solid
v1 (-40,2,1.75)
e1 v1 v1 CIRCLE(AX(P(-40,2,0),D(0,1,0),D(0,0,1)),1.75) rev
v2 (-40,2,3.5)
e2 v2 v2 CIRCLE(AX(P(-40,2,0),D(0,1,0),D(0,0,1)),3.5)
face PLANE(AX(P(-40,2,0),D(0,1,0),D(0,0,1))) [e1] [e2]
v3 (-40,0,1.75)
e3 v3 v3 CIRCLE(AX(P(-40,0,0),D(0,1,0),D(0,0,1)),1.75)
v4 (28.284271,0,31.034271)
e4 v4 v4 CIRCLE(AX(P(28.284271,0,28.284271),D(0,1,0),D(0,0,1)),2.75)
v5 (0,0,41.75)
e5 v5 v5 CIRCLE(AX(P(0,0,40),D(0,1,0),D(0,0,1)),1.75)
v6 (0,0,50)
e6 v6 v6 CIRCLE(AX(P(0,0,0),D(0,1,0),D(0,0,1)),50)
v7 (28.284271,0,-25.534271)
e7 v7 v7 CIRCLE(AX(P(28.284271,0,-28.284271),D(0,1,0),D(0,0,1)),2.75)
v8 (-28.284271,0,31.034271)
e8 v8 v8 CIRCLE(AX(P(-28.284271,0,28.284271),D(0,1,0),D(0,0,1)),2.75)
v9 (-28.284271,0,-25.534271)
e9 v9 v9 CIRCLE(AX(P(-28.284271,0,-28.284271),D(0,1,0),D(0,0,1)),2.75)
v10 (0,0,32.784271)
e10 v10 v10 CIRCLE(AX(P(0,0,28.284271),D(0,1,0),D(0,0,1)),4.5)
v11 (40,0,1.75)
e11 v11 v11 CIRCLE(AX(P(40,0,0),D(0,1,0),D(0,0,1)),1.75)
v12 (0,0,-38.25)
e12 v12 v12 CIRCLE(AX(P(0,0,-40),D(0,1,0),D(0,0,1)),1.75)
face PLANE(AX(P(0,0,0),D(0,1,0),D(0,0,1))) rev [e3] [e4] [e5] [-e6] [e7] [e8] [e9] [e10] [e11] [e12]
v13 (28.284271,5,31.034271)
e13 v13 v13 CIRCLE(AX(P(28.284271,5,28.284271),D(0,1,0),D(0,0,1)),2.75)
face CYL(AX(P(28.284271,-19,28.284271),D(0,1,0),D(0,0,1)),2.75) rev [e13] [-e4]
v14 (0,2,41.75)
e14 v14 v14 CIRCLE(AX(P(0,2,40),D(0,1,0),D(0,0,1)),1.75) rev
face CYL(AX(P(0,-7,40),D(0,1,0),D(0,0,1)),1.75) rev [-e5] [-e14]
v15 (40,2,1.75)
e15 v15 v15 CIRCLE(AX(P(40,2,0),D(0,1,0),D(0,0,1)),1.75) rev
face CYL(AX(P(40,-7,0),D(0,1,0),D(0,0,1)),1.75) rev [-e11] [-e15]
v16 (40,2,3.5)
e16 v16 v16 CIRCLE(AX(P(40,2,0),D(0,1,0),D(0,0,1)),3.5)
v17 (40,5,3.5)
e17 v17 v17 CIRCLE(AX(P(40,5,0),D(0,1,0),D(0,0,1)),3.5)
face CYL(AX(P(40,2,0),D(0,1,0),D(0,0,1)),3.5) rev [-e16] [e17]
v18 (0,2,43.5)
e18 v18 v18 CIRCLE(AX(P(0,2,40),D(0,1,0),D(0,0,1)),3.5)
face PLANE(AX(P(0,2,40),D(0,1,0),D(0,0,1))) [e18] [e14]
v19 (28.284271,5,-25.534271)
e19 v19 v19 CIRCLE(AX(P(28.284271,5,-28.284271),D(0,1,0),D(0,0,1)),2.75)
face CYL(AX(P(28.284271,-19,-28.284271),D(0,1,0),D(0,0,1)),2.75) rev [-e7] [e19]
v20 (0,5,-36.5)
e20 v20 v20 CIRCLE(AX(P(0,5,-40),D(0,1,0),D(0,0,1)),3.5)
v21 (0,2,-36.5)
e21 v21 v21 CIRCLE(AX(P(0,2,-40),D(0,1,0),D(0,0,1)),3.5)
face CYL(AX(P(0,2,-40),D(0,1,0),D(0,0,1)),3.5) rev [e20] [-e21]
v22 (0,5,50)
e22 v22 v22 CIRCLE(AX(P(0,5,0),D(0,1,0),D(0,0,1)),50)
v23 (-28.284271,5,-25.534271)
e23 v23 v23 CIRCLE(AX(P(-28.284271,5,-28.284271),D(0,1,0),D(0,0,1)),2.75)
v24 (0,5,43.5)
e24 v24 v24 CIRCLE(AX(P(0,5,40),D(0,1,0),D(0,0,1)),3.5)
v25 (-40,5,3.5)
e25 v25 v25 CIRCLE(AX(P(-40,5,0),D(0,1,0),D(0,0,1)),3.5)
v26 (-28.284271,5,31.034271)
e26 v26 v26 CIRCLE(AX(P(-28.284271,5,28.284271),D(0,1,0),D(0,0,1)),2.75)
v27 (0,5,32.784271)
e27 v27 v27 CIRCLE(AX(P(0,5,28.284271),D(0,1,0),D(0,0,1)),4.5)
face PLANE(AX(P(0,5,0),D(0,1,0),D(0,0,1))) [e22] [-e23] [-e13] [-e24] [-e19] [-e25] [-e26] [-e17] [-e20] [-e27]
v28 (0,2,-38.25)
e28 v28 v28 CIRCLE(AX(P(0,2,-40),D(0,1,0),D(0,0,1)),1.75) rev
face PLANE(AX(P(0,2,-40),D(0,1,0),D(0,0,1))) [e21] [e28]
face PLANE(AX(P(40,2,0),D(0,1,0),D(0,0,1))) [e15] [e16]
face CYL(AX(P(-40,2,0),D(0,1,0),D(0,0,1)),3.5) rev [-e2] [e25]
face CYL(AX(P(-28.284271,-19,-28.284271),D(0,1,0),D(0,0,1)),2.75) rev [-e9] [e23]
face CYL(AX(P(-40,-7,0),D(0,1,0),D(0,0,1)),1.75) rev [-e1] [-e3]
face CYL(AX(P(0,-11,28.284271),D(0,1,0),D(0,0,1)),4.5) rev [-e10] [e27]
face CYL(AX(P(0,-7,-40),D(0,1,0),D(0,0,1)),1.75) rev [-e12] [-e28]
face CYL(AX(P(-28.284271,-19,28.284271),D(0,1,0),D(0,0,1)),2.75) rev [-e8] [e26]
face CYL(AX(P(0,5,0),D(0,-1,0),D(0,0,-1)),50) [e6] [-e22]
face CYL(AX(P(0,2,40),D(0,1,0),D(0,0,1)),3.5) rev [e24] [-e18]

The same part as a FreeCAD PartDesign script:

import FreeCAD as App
import Part
import Sketcher
from FreeCAD import Vector

doc = App.newDocument("Part")
body = doc.addObject("PartDesign::Body", "Body")

sketch1 = body.newObject("Sketcher::SketchObject", "Sketch")
sketch1.AttachmentSupport = (doc.getObject("XZ_Plane"), [""])
sketch1.MapMode = "FlatFace"
sketch1.addGeometry(Part.Circle(Vector(0, 0, 0), Vector(0, 0, 1), 50), False)
sketch1.addConstraint([
    Sketcher.Constraint("Coincident", 0, 3, -1, 1),
    Sketcher.Constraint("Diameter", 0, 100.0),
])
pad1 = body.newObject("PartDesign::Pad", "Pad")
pad1.Profile = sketch1
pad1.Length = 5
pad1.Reversed = True

sketch2 = body.newObject("Sketcher::SketchObject", "Sketch001")
sketch2.AttachmentSupport = (doc.getObject("XZ_Plane"), [""])
sketch2.MapMode = "FlatFace"
sketch2.AttachmentOffset = App.Placement(Vector(0, 0, -5), App.Rotation())
sketch2.addGeometry([
    Part.Circle(Vector(0, -40, 0), Vector(0, 0, 1), 1.8),
    Part.Circle(Vector(40, 0, 0), Vector(0, 0, 1), 1.8),
    Part.Circle(Vector(0, 40, 0), Vector(0, 0, 1), 1.8),
    Part.Circle(Vector(-40, 0, 0), Vector(0, 0, 1), 1.8),
], False)
sketch2.addConstraint([
    Sketcher.Constraint("Equal", 0, 1),
    Sketcher.Constraint("Equal", 1, 2),
    Sketcher.Constraint("Equal", 2, 3),
    Sketcher.Constraint("Symmetric", 0, 3, 2, 3, -1, 1),
    Sketcher.Constraint("Symmetric", 1, 3, 3, 3, -1, 1),
    Sketcher.Constraint("PointOnObject", 0, 3, -2),
    Sketcher.Constraint("PointOnObject", 1, 3, -1),
    Sketcher.Constraint("Diameter", 0, 3.5),
    Sketcher.Constraint("DistanceY", 0, 3, -1, 1, 40.0),
    Sketcher.Constraint("DistanceX", -1, 1, 1, 3, 40.0),
])
pocket1 = body.newObject("PartDesign::Pocket", "Pocket")
pocket1.Profile = sketch2
pocket1.Length = 12
pocket1.Reversed = True

sketch3 = body.newObject("Sketcher::SketchObject", "Sketch002")
sketch3.AttachmentSupport = (doc.getObject("XZ_Plane"), [""])
sketch3.MapMode = "FlatFace"
sketch3.AttachmentOffset = App.Placement(Vector(0, 0, -5), App.Rotation())
sketch3.addGeometry([
    Part.Circle(Vector(0, -40, 0), Vector(0, 0, 1), 3.5),
    Part.Circle(Vector(40, 0, 0), Vector(0, 0, 1), 3.5),
    Part.Circle(Vector(0, 40, 0), Vector(0, 0, 1), 3.5),
    Part.Circle(Vector(-40, 0, 0), Vector(0, 0, 1), 3.5),
], False)
sketch3.addConstraint([
    Sketcher.Constraint("Equal", 0, 1),
    Sketcher.Constraint("Equal", 1, 2),
    Sketcher.Constraint("Equal", 2, 3),
    Sketcher.Constraint("Symmetric", 0, 3, 2, 3, -1, 1),
    Sketcher.Constraint("Symmetric", 1, 3, 3, 3, -1, 1),
    Sketcher.Constraint("PointOnObject", 0, 3, -2),
    Sketcher.Constraint("PointOnObject", 1, 3, -1),
    Sketcher.Constraint("Diameter", 0, 7.0),
    Sketcher.Constraint("DistanceY", 0, 3, -1, 1, 40.0),
    Sketcher.Constraint("DistanceX", -1, 1, 1, 3, 40.0),
])
pocket2 = body.newObject("PartDesign::Pocket", "Pocket001")
pocket2.Profile = sketch3
pocket2.Length = 3
pocket2.Reversed = True

sketch4 = body.newObject("Sketcher::SketchObject", "Sketch003")
sketch4.AttachmentSupport = (doc.getObject("XZ_Plane"), [""])
sketch4.MapMode = "FlatFace"
sketch4.AttachmentOffset = App.Placement(Vector(0, 0, -5), App.Rotation())
sketch4.addGeometry([
    Part.Circle(Vector(28.3, -28.3, 0), Vector(0, 0, 1), 2.8),
    Part.Circle(Vector(28.3, 28.3, 0), Vector(0, 0, 1), 2.8),
    Part.Circle(Vector(-28.3, 28.3, 0), Vector(0, 0, 1), 2.8),
    Part.Circle(Vector(-28.3, -28.3, 0), Vector(0, 0, 1), 2.8),
], False)
sketch4.addConstraint([
    Sketcher.Constraint("Equal", 0, 1),
    Sketcher.Constraint("Equal", 1, 2),
    Sketcher.Constraint("Equal", 2, 3),
    Sketcher.Constraint("Symmetric", 0, 3, 2, 3, -1, 1),
    Sketcher.Constraint("Symmetric", 1, 3, 3, 3, -1, 1),
    Sketcher.Constraint("Symmetric", 1, 3, 2, 3, -2),
    Sketcher.Constraint("Diameter", 0, 5.5),
    Sketcher.Constraint("DistanceX", -1, 1, 0, 3, 28.284271),
    Sketcher.Constraint("DistanceY", 0, 3, -1, 1, 28.284271),
])
pocket3 = body.newObject("PartDesign::Pocket", "Pocket002")
pocket3.Profile = sketch4
pocket3.Length = 24
pocket3.Reversed = True

sketch5 = body.newObject("Sketcher::SketchObject", "Sketch004")
sketch5.AttachmentSupport = (doc.getObject("XZ_Plane"), [""])
sketch5.MapMode = "FlatFace"
sketch5.AttachmentOffset = App.Placement(Vector(0, 0, -5), App.Rotation())
sketch5.addGeometry(Part.Circle(Vector(0, 28.3, 0), Vector(0, 0, 1), 4.5), False)
sketch5.addConstraint([
    Sketcher.Constraint("PointOnObject", 0, 3, -2),
    Sketcher.Constraint("Diameter", 0, 9.0),
    Sketcher.Constraint("DistanceY", -1, 1, 0, 3, 28.284271),
])
pocket4 = body.newObject("PartDesign::Pocket", "Pocket003")
pocket4.Profile = sketch5
pocket4.Length = 16
pocket4.Reversed = True

doc.recompute()
